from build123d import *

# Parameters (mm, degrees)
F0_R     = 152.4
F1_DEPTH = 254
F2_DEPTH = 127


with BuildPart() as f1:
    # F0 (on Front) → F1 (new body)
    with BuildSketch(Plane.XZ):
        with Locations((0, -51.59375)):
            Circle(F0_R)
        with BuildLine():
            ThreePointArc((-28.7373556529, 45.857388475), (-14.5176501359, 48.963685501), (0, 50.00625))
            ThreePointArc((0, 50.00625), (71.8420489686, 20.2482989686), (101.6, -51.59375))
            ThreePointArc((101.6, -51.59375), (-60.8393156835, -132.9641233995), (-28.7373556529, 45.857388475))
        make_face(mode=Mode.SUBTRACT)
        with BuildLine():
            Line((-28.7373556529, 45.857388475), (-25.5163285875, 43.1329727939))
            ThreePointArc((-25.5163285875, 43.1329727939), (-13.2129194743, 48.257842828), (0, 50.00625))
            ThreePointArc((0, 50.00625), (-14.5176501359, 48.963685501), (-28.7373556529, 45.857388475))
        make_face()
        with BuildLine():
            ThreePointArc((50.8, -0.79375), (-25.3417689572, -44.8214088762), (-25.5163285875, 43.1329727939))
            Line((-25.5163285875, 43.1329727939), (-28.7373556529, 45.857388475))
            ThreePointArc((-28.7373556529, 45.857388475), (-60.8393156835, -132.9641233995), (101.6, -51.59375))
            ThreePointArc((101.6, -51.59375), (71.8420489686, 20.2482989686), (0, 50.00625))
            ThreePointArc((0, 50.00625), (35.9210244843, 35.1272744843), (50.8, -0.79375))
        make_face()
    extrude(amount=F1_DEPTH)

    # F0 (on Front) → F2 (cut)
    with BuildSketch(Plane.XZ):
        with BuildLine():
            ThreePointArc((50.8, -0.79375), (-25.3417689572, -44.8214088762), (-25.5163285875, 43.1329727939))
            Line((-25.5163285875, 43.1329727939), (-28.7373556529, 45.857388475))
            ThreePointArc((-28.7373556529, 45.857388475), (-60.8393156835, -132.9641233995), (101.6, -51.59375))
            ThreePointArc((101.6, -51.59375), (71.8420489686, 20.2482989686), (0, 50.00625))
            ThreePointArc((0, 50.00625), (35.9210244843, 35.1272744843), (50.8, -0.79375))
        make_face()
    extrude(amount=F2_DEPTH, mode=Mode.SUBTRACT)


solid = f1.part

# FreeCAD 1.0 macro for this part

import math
import FreeCAD as App
import Part
import Sketcher
from FreeCAD import Vector
Q = App.Units.Quantity

doc = App.newDocument("Part")
params = doc.addObject("Spreadsheet::Sheet", "Params")
for row, (alias, value) in enumerate([
    ("sketch1_diameter", "12 in"),
    ("sketch1_diameter2", "4 in"),
    ("pad1_length", "10 in"),
    ("sketch2_radius", "2 in"),
    ("sketch2_radius2", "4 in"),
    ("pocket1_length", "5 in"),
], start=1):
    params.set(f"A{row}", alias)
    params.set(f"B{row}", "=" + value)
    params.setAlias(f"B{row}", alias)

body = doc.addObject("PartDesign::Body", "Body")

# Sketch on XZ plane
sketch1 = body.newObject("Sketcher::SketchObject", "Sketch")
sketch1.AttachmentSupport = (doc.getObject("XZ_Plane"), [""])
sketch1.MapMode = "FlatFace"
sketch1.addGeometry([
    Part.Circle(Vector(0, -52, 0), Vector(0, 0, 1), 152),
    Part.Circle(Vector(0, -1, 0), Vector(0, 0, 1), 51),
], False)
sketch1.addConstraint([
    Sketcher.Constraint("PointOnObject", 0, 3, -2),
    Sketcher.Constraint("PointOnObject", 1, 3, -2),
    Sketcher.Constraint("Diameter", 0, Q("12 in")),
    Sketcher.Constraint("Diameter", 1, Q("4 in")),
    Sketcher.Constraint("DistanceY", 0, 3, 1, 3, Q("2 in")),
    Sketcher.Constraint("DistanceY", 0, 3, -1, 1, Q("2.03125 in")),
])
sketch1.setExpression("Constraints[2]", "Params.sketch1_diameter")
sketch1.setExpression("Constraints[3]", "Params.sketch1_diameter2")
pad1 = body.newObject("PartDesign::Pad", "Pad")
pad1.Profile = sketch1
pad1.setExpression("Length", "Params.pad1_length")

# Sketch on XZ plane
sketch2 = body.newObject("Sketcher::SketchObject", "Sketch001")
sketch2.AttachmentSupport = (doc.getObject("XZ_Plane"), [""])
sketch2.MapMode = "FlatFace"
sketch2.addGeometry([
    Part.ArcOfCircle(Part.Circle(Vector(0, -0.8, 0), Vector(0, 0, 1), 50.8), math.radians(120), math.radians(360)),  # 0
    Part.LineSegment(Vector(-25.5, 43.1, 0), Vector(-28.7, 45.9, 0)),  # 1
    Part.ArcOfCircle(Part.Circle(Vector(0, -51.6, 0), Vector(0, 0, 1), 101.6), math.radians(106), math.radians(360)),  # 2
    Part.ArcOfCircle(Part.Circle(Vector(0, -51.6, 0), Vector(0, 0, 1), 101.6), math.radians(0), math.radians(90)),  # 3
    Part.ArcOfCircle(Part.Circle(Vector(0, -0.8, 0), Vector(0, 0, 1), 50.8), math.radians(0), math.radians(90)),  # 4
], False)
sketch2.addConstraint([
    Sketcher.Constraint("Coincident", 0, 1, 1, 1),
    Sketcher.Constraint("Coincident", 1, 2, 2, 1),
    Sketcher.Constraint("Tangent", 2, 2, 3, 1),
    Sketcher.Constraint("Tangent", 3, 2, 4, 2),
    Sketcher.Constraint("Tangent", 4, 1, 0, 2),
    Sketcher.Constraint("Equal", 2, 3),
    Sketcher.Constraint("Equal", 0, 4),
    Sketcher.Constraint("PointOnObject", 0, 3, -2),
    Sketcher.Constraint("PointOnObject", 2, 3, -2),
    Sketcher.Constraint("Horizontal", 3, 3, 2, 2),
    Sketcher.Constraint("Horizontal", 0, 3, 4, 1),
    Sketcher.Constraint("Radius", 0, Q("2 in")),
    Sketcher.Constraint("Radius", 2, Q("4 in")),
    Sketcher.Constraint("DistanceY", 0, 3, -1, 1, Q("0.03125 in")),
    Sketcher.Constraint("DistanceX", 0, 1, -1, 1, Q("25.516329 mm")),
    Sketcher.Constraint("DistanceY", -1, 1, 1, 2, Q("45.857388 mm")),
])
sketch2.setExpression("Constraints[11]", "Params.sketch2_radius")
sketch2.setExpression("Constraints[12]", "Params.sketch2_radius2")
pocket1 = body.newObject("PartDesign::Pocket", "Pocket")
pocket1.Profile = sketch2
pocket1.setExpression("Length", "Params.pocket1_length")
pocket1.Reversed = True

doc.recompute()
